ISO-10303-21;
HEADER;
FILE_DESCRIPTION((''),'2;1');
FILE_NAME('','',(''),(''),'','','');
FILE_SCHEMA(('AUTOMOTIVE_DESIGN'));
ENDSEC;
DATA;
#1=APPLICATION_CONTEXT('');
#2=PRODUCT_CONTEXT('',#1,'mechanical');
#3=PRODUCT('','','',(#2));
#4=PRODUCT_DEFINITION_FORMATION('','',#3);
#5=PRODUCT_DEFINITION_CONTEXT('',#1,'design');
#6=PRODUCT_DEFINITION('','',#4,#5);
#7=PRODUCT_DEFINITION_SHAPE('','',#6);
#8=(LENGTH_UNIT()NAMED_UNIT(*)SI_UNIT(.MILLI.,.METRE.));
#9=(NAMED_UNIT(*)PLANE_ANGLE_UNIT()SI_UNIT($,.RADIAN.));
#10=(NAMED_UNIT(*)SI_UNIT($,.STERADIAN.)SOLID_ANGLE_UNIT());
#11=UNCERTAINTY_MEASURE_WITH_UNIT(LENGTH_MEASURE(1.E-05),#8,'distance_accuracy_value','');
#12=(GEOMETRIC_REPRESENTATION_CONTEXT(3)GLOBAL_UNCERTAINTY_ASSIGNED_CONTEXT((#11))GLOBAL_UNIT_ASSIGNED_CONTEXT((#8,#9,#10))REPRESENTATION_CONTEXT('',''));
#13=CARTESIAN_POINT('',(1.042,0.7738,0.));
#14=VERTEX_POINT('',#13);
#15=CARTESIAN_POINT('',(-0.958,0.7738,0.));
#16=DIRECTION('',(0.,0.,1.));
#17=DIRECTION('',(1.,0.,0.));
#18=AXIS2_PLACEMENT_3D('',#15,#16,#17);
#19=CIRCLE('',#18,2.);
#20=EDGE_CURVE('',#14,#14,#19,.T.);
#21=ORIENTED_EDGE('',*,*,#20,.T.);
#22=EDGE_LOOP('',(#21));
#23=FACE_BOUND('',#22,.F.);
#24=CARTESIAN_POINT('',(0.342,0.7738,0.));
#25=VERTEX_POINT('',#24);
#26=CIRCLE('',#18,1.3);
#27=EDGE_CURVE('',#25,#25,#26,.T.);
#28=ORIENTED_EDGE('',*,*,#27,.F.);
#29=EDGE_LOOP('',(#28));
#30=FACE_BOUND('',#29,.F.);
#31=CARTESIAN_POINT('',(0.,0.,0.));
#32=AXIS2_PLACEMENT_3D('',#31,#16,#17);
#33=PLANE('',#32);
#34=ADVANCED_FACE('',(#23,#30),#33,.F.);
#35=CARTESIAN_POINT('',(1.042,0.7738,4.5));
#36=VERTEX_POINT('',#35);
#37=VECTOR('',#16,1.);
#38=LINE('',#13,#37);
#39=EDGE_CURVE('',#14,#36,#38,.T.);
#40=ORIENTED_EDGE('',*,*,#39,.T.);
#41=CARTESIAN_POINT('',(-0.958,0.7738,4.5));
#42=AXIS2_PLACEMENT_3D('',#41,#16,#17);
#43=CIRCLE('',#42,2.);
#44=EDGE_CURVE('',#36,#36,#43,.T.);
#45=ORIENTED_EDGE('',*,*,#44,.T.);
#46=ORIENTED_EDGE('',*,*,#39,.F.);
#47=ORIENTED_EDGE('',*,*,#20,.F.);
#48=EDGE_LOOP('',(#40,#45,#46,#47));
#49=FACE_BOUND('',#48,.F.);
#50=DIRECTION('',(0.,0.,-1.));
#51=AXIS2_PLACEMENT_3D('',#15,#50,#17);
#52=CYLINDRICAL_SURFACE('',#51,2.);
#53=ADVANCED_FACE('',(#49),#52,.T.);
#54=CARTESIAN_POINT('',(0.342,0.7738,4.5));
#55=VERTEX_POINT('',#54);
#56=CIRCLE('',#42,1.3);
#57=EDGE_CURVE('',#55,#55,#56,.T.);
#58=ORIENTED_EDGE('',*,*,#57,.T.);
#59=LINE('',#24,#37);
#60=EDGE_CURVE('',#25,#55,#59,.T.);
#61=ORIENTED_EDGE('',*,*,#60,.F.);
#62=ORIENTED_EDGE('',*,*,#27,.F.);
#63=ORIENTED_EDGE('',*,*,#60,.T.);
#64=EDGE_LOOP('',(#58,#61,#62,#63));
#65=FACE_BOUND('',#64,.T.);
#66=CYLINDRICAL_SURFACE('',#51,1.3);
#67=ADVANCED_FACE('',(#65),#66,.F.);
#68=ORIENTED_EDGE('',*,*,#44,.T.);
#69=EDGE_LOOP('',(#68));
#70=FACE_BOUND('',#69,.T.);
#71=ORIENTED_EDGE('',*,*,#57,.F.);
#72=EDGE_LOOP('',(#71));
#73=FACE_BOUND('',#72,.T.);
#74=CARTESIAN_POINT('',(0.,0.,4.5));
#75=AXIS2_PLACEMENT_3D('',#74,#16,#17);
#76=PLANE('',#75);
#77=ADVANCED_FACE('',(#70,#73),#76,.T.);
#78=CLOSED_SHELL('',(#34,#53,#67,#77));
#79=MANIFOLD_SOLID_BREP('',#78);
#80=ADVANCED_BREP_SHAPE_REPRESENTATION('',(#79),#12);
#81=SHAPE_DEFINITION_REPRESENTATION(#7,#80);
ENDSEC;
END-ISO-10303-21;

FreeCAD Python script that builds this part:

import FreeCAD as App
import Part
import Sketcher
Q = App.Units.Quantity

doc = App.newDocument("Part")
body = doc.addObject("PartDesign::Body", "Body")

# Sketch on XY plane
sketch1 = body.newObject("Sketcher::SketchObject", "Sketch")
sketch1.AttachmentSupport = (doc.getObject("XY_Plane"), [""])
sketch1.MapMode = "FlatFace"
sketch1.addGeometry([
    Part.Circle(App.Vector(-1, 0.8, 0), App.Vector(0, 0, 1), 2),
    Part.Circle(App.Vector(-1, 0.8, 0), App.Vector(0, 0, 1), 1.3),
], False)
sketch1.addConstraint([
    Sketcher.Constraint("Coincident", 1, 3, 0, 3),
    Sketcher.Constraint("Diameter", 0, Q("4 mm")),
    Sketcher.Constraint("Diameter", 1, Q("2.6 mm")),
    Sketcher.Constraint("DistanceX", 0, 3, -1, 1, Q("0.958 mm")),
    Sketcher.Constraint("DistanceY", -1, 1, 0, 3, Q("0.7738 mm")),
])
pad1 = body.newObject("PartDesign::Pad", "Pad")
pad1.Profile = sketch1
pad1.Length = 4.5

doc.recompute()
